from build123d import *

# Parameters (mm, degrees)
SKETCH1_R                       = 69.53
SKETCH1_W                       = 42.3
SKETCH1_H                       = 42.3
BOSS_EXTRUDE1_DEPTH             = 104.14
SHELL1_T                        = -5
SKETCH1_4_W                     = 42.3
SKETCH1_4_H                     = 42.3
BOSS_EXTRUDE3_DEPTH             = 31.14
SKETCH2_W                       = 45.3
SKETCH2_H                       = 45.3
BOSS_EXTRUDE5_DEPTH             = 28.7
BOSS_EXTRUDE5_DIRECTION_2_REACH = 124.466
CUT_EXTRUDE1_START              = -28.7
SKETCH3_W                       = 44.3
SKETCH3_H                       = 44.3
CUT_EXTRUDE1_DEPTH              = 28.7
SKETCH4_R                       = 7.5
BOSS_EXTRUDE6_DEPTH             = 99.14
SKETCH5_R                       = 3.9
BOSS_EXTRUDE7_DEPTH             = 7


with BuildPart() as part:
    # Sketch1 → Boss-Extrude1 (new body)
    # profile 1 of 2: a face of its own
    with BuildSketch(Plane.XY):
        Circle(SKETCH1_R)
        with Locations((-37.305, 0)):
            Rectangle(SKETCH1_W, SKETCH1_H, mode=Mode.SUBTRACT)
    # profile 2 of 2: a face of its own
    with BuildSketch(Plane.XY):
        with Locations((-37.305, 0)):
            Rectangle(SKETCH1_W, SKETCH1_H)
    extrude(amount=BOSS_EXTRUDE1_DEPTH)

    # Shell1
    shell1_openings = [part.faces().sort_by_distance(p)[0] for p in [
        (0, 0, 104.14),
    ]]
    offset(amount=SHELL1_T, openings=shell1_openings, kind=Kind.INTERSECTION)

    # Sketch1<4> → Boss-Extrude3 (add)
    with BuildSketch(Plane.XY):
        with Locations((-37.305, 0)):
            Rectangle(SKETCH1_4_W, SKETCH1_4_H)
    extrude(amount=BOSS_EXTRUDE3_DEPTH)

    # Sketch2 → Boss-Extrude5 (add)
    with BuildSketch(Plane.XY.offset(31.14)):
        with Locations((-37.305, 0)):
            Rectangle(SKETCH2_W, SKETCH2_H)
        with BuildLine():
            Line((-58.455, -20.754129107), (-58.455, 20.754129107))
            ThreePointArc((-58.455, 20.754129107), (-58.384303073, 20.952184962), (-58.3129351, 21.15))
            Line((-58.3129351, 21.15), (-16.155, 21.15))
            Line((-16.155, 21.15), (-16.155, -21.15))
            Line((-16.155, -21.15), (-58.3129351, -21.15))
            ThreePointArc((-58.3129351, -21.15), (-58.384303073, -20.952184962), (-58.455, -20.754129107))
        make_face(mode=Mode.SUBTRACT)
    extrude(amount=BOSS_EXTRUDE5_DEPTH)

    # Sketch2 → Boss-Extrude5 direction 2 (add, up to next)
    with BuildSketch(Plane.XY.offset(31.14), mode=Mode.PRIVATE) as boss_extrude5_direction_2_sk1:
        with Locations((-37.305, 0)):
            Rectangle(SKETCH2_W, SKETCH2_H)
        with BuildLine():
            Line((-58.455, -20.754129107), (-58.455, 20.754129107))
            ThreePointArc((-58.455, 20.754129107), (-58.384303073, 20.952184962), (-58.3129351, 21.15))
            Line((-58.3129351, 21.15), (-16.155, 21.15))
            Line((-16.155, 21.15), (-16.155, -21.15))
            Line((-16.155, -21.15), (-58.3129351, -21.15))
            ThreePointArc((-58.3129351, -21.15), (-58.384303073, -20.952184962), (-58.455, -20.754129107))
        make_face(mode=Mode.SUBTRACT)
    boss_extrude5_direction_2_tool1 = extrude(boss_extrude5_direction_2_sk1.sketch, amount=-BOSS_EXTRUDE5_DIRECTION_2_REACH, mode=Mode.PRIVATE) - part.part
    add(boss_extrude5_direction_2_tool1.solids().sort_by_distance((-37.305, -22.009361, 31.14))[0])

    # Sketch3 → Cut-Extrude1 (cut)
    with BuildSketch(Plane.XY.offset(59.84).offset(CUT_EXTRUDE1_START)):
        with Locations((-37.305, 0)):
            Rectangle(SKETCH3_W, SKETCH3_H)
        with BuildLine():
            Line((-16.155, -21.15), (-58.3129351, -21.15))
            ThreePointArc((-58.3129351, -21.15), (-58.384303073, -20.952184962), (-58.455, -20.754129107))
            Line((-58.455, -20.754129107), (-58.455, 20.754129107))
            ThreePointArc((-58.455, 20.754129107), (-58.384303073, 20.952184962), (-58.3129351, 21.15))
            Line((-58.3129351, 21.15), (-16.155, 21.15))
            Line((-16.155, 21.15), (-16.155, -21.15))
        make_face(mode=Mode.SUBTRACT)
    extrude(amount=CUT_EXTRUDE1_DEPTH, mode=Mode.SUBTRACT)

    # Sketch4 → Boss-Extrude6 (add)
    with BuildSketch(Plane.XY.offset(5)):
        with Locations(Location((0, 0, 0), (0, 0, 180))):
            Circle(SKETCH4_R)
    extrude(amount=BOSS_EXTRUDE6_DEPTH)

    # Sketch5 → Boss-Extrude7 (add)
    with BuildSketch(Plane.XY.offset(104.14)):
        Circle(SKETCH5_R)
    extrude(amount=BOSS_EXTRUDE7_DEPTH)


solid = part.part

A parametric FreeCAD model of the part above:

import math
import FreeCAD as App
import Part
import Sketcher
from FreeCAD import Vector


def faces_at(feature, points):
    """Names of the faces that lie closest to the given points."""
    faces = feature.Shape.Faces
    near = lambda p: min(range(len(faces)), key=lambda i: faces[i].distToShape(Part.Vertex(*p))[0])
    return sorted({f"Face{near(p) + 1}" for p in points})


def add_polygon(sketch, points):
    """Adds a closed chain of lines whose ends are joined by coincident constraints."""
    first, n = sketch.GeometryCount, len(points)
    for a, b in zip(points, points[1:] + points[:1]):
        sketch.addGeometry(Part.LineSegment(App.Vector(*a, 0), App.Vector(*b, 0)), False)
    for i in range(n):
        sketch.addConstraint(Sketcher.Constraint("Coincident", first + i, 2, first + (i + 1) % n, 1))

doc = App.newDocument("Part")
body = doc.addObject("PartDesign::Body", "Body")

# Sketch on XY plane
sketch1 = body.newObject("Sketcher::SketchObject", "Sketch")
sketch1.AttachmentSupport = (doc.getObject("XY_Plane"), [""])
sketch1.MapMode = "FlatFace"
sketch1.addGeometry(Part.Circle(Vector(0, 0, 0), Vector(0, 0, 1), 70), False)
sketch1.addConstraint(Sketcher.Constraint("Coincident", 0, 3, -1, 1))
sketch1.addConstraint(Sketcher.Constraint("Diameter", 0, 139.06))
pad1 = body.newObject("PartDesign::Pad", "Pad")
pad1.Profile = sketch1
pad1.Length = 104.14
doc.recompute()

thickness = body.newObject("PartDesign::Thickness", "Thickness")
thickness.Base = (pad1, faces_at(pad1, [(0, 0, 104.14)]))
thickness.Value = 5
thickness.Reversed = True
thickness.Join = "Intersection"

# Sketch on XY plane
sketch2 = body.newObject("Sketcher::SketchObject", "Sketch001")
sketch2.AttachmentSupport = (doc.getObject("XY_Plane"), [""])
sketch2.MapMode = "FlatFace"
add_polygon(sketch2, [(-58, 21), (-58, -21), (-16, -21), (-16, 21)])  # lines 0-3
sketch2.addConstraint(Sketcher.Constraint("Vertical", 0))
sketch2.addConstraint(Sketcher.Constraint("Horizontal", 1))
sketch2.addConstraint(Sketcher.Constraint("Vertical", 2))
sketch2.addConstraint(Sketcher.Constraint("Horizontal", 3))
sketch2.addConstraint(Sketcher.Constraint("Equal", 3, 0))
sketch2.addConstraint(Sketcher.Constraint("DistanceX", 1, 1, 1, 2, 42.3))
sketch2.addConstraint(Sketcher.Constraint("DistanceY", 0, 2, -1, 1, 21.15))
sketch2.addConstraint(Sketcher.Constraint("DistanceX", 0, 2, -1, 1, 58.455))
pad2 = body.newObject("PartDesign::Pad", "Pad001")
pad2.Profile = sketch2
pad2.Length = 31.14

# Sketch on XY plane
sketch3 = body.newObject("Sketcher::SketchObject", "Sketch002")
sketch3.AttachmentSupport = (doc.getObject("XY_Plane"), [""])
sketch3.MapMode = "FlatFace"
sketch3.AttachmentOffset = App.Placement(Vector(0, 0, 31.14), App.Rotation())
add_polygon(sketch3, [(-59.955, 22.65), (-59.955, -22.65), (-14.655, -22.65), (-14.655, 22.65)])  # lines 0-3
sketch3.addGeometry(Part.ArcOfCircle(Part.Circle(Vector(-0.000024, -0.000009, 0), Vector(0, 0, 1), 62.029974), math.radians(-160.452871), math.radians(-160.06438)), False)  # 4
sketch3.addGeometry(Part.LineSegment(Vector(-58.455, -20.754129, 0), Vector(-58.455, 20.754129, 0)), False)  # 5
sketch3.addGeometry(Part.ArcOfCircle(Part.Circle(Vector(-0.000024, 0.000009, 0), Vector(0, 0, 1), 62.029974), math.radians(160.06438), math.radians(160.452871)), False)  # 6
sketch3.addGeometry(Part.LineSegment(Vector(-58.312935, 21.15, 0), Vector(-16.155, 21.15, 0)), False)  # 7
sketch3.addGeometry(Part.LineSegment(Vector(-16.155, 21.15, 0), Vector(-16.155, -21.15, 0)), False)  # 8
sketch3.addGeometry(Part.LineSegment(Vector(-16.155, -21.15, 0), Vector(-58.312935, -21.15, 0)), False)  # 9
sketch3.addConstraint(Sketcher.Constraint("Coincident", 4, 1, 5, 1))
sketch3.addConstraint(Sketcher.Constraint("Coincident", 5, 2, 6, 2))
sketch3.addConstraint(Sketcher.Constraint("Coincident", 6, 1, 7, 1))
sketch3.addConstraint(Sketcher.Constraint("Coincident", 7, 2, 8, 1))
sketch3.addConstraint(Sketcher.Constraint("Coincident", 8, 2, 9, 1))
sketch3.addConstraint(Sketcher.Constraint("Coincident", 9, 2, 4, 2))
sketch3.addConstraint(Sketcher.Constraint("Vertical", 0))
sketch3.addConstraint(Sketcher.Constraint("Horizontal", 1))
sketch3.addConstraint(Sketcher.Constraint("Vertical", 2))
sketch3.addConstraint(Sketcher.Constraint("Horizontal", 3))
sketch3.addConstraint(Sketcher.Constraint("Vertical", 5))
sketch3.addConstraint(Sketcher.Constraint("Horizontal", 7))
sketch3.addConstraint(Sketcher.Constraint("Vertical", 8))
sketch3.addConstraint(Sketcher.Constraint("Horizontal", 9))
sketch3.addConstraint(Sketcher.Constraint("Equal", 4, 6))
sketch3.addConstraint(Sketcher.Constraint("Symmetric", 4, 3, 6, 3, -1))
sketch3.addConstraint(Sketcher.Constraint("Vertical", 6, 1, 9, 2))
sketch3.addConstraint(Sketcher.Constraint("Equal", 3, 0))
sketch3.addConstraint(Sketcher.Constraint("DistanceX", 1, 1, 1, 2, 45.3))
sketch3.addConstraint(Sketcher.Constraint("DistanceY", 8, 2, 8, 1, 42.3))
sketch3.addConstraint(Sketcher.Constraint("DistanceX", 0, 2, 4, 1, 1.5))
sketch3.addConstraint(Sketcher.Constraint("DistanceY", 6, 1, 3, 2, 1.5))
sketch3.addConstraint(Sketcher.Constraint("DistanceX", 7, 2, 2, 2, 1.5))
sketch3.addConstraint(Sketcher.Constraint("DistanceX", 0, 2, -1, 1, 59.955))
sketch3.addConstraint(Sketcher.Constraint("Radius", 4, 62.029974))
sketch3.addConstraint(Sketcher.Constraint("DistanceY", 5, 1, 5, 2, 41.508258))
sketch3.addConstraint(Sketcher.Constraint("DistanceX", 7, 1, 7, 2, 42.157935))
pad3 = body.newObject("PartDesign::Pad", "Pad002")
pad3.Profile = sketch3
pad3.Length = 28.7

# Sketch on XY plane
sketch4 = body.newObject("Sketcher::SketchObject", "Sketch003")
sketch4.AttachmentSupport = (doc.getObject("XY_Plane"), [""])
sketch4.MapMode = "FlatFace"
sketch4.AttachmentOffset = App.Placement(Vector(0, 0, 31.14), App.Rotation())
add_polygon(sketch4, [(-59.955, 22.65), (-59.955, -22.65), (-14.655, -22.65), (-14.655, 22.65)])  # lines 0-3
sketch4.addGeometry(Part.ArcOfCircle(Part.Circle(Vector(-0.000024, -0.000009, 0), Vector(0, 0, 1), 62.029974), math.radians(-160.452871), math.radians(-160.06438)), False)  # 4
sketch4.addGeometry(Part.LineSegment(Vector(-58.455, -20.754129, 0), Vector(-58.455, 20.754129, 0)), False)  # 5
sketch4.addGeometry(Part.ArcOfCircle(Part.Circle(Vector(-0.000024, 0.000009, 0), Vector(0, 0, 1), 62.029974), math.radians(160.06438), math.radians(160.452871)), False)  # 6
sketch4.addGeometry(Part.LineSegment(Vector(-58.312935, 21.15, 0), Vector(-16.155, 21.15, 0)), False)  # 7
sketch4.addGeometry(Part.LineSegment(Vector(-16.155, 21.15, 0), Vector(-16.155, -21.15, 0)), False)  # 8
sketch4.addGeometry(Part.LineSegment(Vector(-16.155, -21.15, 0), Vector(-58.312935, -21.15, 0)), False)  # 9
sketch4.addConstraint(Sketcher.Constraint("Coincident", 4, 1, 5, 1))
sketch4.addConstraint(Sketcher.Constraint("Coincident", 5, 2, 6, 2))
sketch4.addConstraint(Sketcher.Constraint("Coincident", 6, 1, 7, 1))
sketch4.addConstraint(Sketcher.Constraint("Coincident", 7, 2, 8, 1))
sketch4.addConstraint(Sketcher.Constraint("Coincident", 8, 2, 9, 1))
sketch4.addConstraint(Sketcher.Constraint("Coincident", 9, 2, 4, 2))
sketch4.addConstraint(Sketcher.Constraint("Vertical", 0))
sketch4.addConstraint(Sketcher.Constraint("Horizontal", 1))
sketch4.addConstraint(Sketcher.Constraint("Vertical", 2))
sketch4.addConstraint(Sketcher.Constraint("Horizontal", 3))
sketch4.addConstraint(Sketcher.Constraint("Vertical", 5))
sketch4.addConstraint(Sketcher.Constraint("Horizontal", 7))
sketch4.addConstraint(Sketcher.Constraint("Vertical", 8))
sketch4.addConstraint(Sketcher.Constraint("Horizontal", 9))
sketch4.addConstraint(Sketcher.Constraint("Equal", 4, 6))
sketch4.addConstraint(Sketcher.Constraint("Symmetric", 4, 3, 6, 3, -1))
sketch4.addConstraint(Sketcher.Constraint("Vertical", 6, 1, 9, 2))
sketch4.addConstraint(Sketcher.Constraint("Equal", 3, 0))
sketch4.addConstraint(Sketcher.Constraint("DistanceX", 1, 1, 1, 2, 45.3))
sketch4.addConstraint(Sketcher.Constraint("DistanceY", 8, 2, 8, 1, 42.3))
sketch4.addConstraint(Sketcher.Constraint("DistanceX", 0, 2, 4, 1, 1.5))
sketch4.addConstraint(Sketcher.Constraint("DistanceY", 6, 1, 3, 2, 1.5))
sketch4.addConstraint(Sketcher.Constraint("DistanceX", 7, 2, 2, 2, 1.5))
sketch4.addConstraint(Sketcher.Constraint("DistanceX", 0, 2, -1, 1, 59.955))
sketch4.addConstraint(Sketcher.Constraint("Radius", 4, 62.029974))
sketch4.addConstraint(Sketcher.Constraint("DistanceY", 5, 1, 5, 2, 41.508258))
sketch4.addConstraint(Sketcher.Constraint("DistanceX", 7, 1, 7, 2, 42.157935))
pad4 = body.newObject("PartDesign::Pad", "Pad003")
pad4.Profile = sketch4
pad4.Type = "UpToFirst"
pad4.Reversed = True

# Sketch on XY plane
sketch5 = body.newObject("Sketcher::SketchObject", "Sketch004")
sketch5.AttachmentSupport = (doc.getObject("XY_Plane"), [""])
sketch5.MapMode = "FlatFace"
sketch5.AttachmentOffset = App.Placement(Vector(0, 0, 31.14), App.Rotation())
add_polygon(sketch5, [(-59.455, 22.15), (-59.455, -22.15), (-15.155, -22.15), (-15.155, 22.15)])  # lines 0-3
sketch5.addGeometry(Part.LineSegment(Vector(-16.155, 21.15, 0), Vector(-16.155, -21.15, 0)), False)  # 4
sketch5.addGeometry(Part.LineSegment(Vector(-16.155, -21.15, 0), Vector(-58.312935, -21.15, 0)), False)  # 5
sketch5.addGeometry(Part.ArcOfCircle(Part.Circle(Vector(-0.000024, -0.000009, 0), Vector(0, 0, 1), 62.029974), math.radians(-160.452871), math.radians(-160.06438)), False)  # 6
sketch5.addGeometry(Part.LineSegment(Vector(-58.455, -20.754129, 0), Vector(-58.455, 20.754129, 0)), False)  # 7
sketch5.addGeometry(Part.ArcOfCircle(Part.Circle(Vector(-0.000024, 0.000009, 0), Vector(0, 0, 1), 62.029974), math.radians(160.06438), math.radians(160.452871)), False)  # 8
sketch5.addGeometry(Part.LineSegment(Vector(-58.312935, 21.15, 0), Vector(-16.155, 21.15, 0)), False)  # 9
sketch5.addConstraint(Sketcher.Constraint("Coincident", 4, 2, 5, 1))
sketch5.addConstraint(Sketcher.Constraint("Coincident", 5, 2, 6, 2))
sketch5.addConstraint(Sketcher.Constraint("Coincident", 6, 1, 7, 1))
sketch5.addConstraint(Sketcher.Constraint("Coincident", 7, 2, 8, 2))
sketch5.addConstraint(Sketcher.Constraint("Coincident", 8, 1, 9, 1))
sketch5.addConstraint(Sketcher.Constraint("Coincident", 9, 2, 4, 1))
sketch5.addConstraint(Sketcher.Constraint("Vertical", 0))
sketch5.addConstraint(Sketcher.Constraint("Horizontal", 1))
sketch5.addConstraint(Sketcher.Constraint("Vertical", 2))
sketch5.addConstraint(Sketcher.Constraint("Horizontal", 3))
sketch5.addConstraint(Sketcher.Constraint("Vertical", 4))
sketch5.addConstraint(Sketcher.Constraint("Horizontal", 5))
sketch5.addConstraint(Sketcher.Constraint("Vertical", 7))
sketch5.addConstraint(Sketcher.Constraint("Horizontal", 9))
sketch5.addConstraint(Sketcher.Constraint("Equal", 6, 8))
sketch5.addConstraint(Sketcher.Constraint("Symmetric", 6, 3, 8, 3, -1))
sketch5.addConstraint(Sketcher.Constraint("Vertical", 5, 2, 8, 1))
sketch5.addConstraint(Sketcher.Constraint("Equal", 3, 0))
sketch5.addConstraint(Sketcher.Constraint("DistanceX", 1, 1, 1, 2, 44.3))
sketch5.addConstraint(Sketcher.Constraint("DistanceY", 4, 2, 4, 1, 42.3))
sketch5.addConstraint(Sketcher.Constraint("DistanceX", 4, 2, 1, 2, 1.0))
sketch5.addConstraint(Sketcher.Constraint("DistanceY", 1, 2, 4, 2, 1.0))
sketch5.addConstraint(Sketcher.Constraint("DistanceX", 0, 2, 6, 1, 1.0))
sketch5.addConstraint(Sketcher.Constraint("DistanceX", 0, 2, -1, 1, 59.455))
sketch5.addConstraint(Sketcher.Constraint("Radius", 6, 62.029974))
sketch5.addConstraint(Sketcher.Constraint("DistanceY", 7, 1, 7, 2, 41.508258))
sketch5.addConstraint(Sketcher.Constraint("DistanceX", 5, 2, 5, 1, 42.157935))
pocket1 = body.newObject("PartDesign::Pocket", "Pocket")
pocket1.Profile = sketch5
pocket1.Length = 28.7
pocket1.Reversed = True

# Sketch on XY plane
sketch6 = body.newObject("Sketcher::SketchObject", "Sketch005")
sketch6.AttachmentSupport = (doc.getObject("XY_Plane"), [""])
sketch6.MapMode = "FlatFace"
sketch6.AttachmentOffset = App.Placement(Vector(0, 0, 5), App.Rotation())
sketch6.addGeometry(Part.Circle(Vector(0, 0, 0), Vector(0, 0, 1), 8), False)
sketch6.addConstraint(Sketcher.Constraint("Coincident", 0, 3, -1, 1))
sketch6.addConstraint(Sketcher.Constraint("Diameter", 0, 15.0))
pad5 = body.newObject("PartDesign::Pad", "Pad004")
pad5.Profile = sketch6
pad5.Length = 99.14

# Sketch on XY plane
sketch7 = body.newObject("Sketcher::SketchObject", "Sketch006")
sketch7.AttachmentSupport = (doc.getObject("XY_Plane"), [""])
sketch7.MapMode = "FlatFace"
sketch7.AttachmentOffset = App.Placement(Vector(0, 0, 104.14), App.Rotation())
sketch7.addGeometry(Part.Circle(Vector(0, 0, 0), Vector(0, 0, 1), 3.9), False)
sketch7.addConstraint(Sketcher.Constraint("Coincident", 0, 3, -1, 1))
sketch7.addConstraint(Sketcher.Constraint("Diameter", 0, 7.8))
pad6 = body.newObject("PartDesign::Pad", "Pad005")
pad6.Profile = sketch7
pad6.Length = 7

doc.recompute()
